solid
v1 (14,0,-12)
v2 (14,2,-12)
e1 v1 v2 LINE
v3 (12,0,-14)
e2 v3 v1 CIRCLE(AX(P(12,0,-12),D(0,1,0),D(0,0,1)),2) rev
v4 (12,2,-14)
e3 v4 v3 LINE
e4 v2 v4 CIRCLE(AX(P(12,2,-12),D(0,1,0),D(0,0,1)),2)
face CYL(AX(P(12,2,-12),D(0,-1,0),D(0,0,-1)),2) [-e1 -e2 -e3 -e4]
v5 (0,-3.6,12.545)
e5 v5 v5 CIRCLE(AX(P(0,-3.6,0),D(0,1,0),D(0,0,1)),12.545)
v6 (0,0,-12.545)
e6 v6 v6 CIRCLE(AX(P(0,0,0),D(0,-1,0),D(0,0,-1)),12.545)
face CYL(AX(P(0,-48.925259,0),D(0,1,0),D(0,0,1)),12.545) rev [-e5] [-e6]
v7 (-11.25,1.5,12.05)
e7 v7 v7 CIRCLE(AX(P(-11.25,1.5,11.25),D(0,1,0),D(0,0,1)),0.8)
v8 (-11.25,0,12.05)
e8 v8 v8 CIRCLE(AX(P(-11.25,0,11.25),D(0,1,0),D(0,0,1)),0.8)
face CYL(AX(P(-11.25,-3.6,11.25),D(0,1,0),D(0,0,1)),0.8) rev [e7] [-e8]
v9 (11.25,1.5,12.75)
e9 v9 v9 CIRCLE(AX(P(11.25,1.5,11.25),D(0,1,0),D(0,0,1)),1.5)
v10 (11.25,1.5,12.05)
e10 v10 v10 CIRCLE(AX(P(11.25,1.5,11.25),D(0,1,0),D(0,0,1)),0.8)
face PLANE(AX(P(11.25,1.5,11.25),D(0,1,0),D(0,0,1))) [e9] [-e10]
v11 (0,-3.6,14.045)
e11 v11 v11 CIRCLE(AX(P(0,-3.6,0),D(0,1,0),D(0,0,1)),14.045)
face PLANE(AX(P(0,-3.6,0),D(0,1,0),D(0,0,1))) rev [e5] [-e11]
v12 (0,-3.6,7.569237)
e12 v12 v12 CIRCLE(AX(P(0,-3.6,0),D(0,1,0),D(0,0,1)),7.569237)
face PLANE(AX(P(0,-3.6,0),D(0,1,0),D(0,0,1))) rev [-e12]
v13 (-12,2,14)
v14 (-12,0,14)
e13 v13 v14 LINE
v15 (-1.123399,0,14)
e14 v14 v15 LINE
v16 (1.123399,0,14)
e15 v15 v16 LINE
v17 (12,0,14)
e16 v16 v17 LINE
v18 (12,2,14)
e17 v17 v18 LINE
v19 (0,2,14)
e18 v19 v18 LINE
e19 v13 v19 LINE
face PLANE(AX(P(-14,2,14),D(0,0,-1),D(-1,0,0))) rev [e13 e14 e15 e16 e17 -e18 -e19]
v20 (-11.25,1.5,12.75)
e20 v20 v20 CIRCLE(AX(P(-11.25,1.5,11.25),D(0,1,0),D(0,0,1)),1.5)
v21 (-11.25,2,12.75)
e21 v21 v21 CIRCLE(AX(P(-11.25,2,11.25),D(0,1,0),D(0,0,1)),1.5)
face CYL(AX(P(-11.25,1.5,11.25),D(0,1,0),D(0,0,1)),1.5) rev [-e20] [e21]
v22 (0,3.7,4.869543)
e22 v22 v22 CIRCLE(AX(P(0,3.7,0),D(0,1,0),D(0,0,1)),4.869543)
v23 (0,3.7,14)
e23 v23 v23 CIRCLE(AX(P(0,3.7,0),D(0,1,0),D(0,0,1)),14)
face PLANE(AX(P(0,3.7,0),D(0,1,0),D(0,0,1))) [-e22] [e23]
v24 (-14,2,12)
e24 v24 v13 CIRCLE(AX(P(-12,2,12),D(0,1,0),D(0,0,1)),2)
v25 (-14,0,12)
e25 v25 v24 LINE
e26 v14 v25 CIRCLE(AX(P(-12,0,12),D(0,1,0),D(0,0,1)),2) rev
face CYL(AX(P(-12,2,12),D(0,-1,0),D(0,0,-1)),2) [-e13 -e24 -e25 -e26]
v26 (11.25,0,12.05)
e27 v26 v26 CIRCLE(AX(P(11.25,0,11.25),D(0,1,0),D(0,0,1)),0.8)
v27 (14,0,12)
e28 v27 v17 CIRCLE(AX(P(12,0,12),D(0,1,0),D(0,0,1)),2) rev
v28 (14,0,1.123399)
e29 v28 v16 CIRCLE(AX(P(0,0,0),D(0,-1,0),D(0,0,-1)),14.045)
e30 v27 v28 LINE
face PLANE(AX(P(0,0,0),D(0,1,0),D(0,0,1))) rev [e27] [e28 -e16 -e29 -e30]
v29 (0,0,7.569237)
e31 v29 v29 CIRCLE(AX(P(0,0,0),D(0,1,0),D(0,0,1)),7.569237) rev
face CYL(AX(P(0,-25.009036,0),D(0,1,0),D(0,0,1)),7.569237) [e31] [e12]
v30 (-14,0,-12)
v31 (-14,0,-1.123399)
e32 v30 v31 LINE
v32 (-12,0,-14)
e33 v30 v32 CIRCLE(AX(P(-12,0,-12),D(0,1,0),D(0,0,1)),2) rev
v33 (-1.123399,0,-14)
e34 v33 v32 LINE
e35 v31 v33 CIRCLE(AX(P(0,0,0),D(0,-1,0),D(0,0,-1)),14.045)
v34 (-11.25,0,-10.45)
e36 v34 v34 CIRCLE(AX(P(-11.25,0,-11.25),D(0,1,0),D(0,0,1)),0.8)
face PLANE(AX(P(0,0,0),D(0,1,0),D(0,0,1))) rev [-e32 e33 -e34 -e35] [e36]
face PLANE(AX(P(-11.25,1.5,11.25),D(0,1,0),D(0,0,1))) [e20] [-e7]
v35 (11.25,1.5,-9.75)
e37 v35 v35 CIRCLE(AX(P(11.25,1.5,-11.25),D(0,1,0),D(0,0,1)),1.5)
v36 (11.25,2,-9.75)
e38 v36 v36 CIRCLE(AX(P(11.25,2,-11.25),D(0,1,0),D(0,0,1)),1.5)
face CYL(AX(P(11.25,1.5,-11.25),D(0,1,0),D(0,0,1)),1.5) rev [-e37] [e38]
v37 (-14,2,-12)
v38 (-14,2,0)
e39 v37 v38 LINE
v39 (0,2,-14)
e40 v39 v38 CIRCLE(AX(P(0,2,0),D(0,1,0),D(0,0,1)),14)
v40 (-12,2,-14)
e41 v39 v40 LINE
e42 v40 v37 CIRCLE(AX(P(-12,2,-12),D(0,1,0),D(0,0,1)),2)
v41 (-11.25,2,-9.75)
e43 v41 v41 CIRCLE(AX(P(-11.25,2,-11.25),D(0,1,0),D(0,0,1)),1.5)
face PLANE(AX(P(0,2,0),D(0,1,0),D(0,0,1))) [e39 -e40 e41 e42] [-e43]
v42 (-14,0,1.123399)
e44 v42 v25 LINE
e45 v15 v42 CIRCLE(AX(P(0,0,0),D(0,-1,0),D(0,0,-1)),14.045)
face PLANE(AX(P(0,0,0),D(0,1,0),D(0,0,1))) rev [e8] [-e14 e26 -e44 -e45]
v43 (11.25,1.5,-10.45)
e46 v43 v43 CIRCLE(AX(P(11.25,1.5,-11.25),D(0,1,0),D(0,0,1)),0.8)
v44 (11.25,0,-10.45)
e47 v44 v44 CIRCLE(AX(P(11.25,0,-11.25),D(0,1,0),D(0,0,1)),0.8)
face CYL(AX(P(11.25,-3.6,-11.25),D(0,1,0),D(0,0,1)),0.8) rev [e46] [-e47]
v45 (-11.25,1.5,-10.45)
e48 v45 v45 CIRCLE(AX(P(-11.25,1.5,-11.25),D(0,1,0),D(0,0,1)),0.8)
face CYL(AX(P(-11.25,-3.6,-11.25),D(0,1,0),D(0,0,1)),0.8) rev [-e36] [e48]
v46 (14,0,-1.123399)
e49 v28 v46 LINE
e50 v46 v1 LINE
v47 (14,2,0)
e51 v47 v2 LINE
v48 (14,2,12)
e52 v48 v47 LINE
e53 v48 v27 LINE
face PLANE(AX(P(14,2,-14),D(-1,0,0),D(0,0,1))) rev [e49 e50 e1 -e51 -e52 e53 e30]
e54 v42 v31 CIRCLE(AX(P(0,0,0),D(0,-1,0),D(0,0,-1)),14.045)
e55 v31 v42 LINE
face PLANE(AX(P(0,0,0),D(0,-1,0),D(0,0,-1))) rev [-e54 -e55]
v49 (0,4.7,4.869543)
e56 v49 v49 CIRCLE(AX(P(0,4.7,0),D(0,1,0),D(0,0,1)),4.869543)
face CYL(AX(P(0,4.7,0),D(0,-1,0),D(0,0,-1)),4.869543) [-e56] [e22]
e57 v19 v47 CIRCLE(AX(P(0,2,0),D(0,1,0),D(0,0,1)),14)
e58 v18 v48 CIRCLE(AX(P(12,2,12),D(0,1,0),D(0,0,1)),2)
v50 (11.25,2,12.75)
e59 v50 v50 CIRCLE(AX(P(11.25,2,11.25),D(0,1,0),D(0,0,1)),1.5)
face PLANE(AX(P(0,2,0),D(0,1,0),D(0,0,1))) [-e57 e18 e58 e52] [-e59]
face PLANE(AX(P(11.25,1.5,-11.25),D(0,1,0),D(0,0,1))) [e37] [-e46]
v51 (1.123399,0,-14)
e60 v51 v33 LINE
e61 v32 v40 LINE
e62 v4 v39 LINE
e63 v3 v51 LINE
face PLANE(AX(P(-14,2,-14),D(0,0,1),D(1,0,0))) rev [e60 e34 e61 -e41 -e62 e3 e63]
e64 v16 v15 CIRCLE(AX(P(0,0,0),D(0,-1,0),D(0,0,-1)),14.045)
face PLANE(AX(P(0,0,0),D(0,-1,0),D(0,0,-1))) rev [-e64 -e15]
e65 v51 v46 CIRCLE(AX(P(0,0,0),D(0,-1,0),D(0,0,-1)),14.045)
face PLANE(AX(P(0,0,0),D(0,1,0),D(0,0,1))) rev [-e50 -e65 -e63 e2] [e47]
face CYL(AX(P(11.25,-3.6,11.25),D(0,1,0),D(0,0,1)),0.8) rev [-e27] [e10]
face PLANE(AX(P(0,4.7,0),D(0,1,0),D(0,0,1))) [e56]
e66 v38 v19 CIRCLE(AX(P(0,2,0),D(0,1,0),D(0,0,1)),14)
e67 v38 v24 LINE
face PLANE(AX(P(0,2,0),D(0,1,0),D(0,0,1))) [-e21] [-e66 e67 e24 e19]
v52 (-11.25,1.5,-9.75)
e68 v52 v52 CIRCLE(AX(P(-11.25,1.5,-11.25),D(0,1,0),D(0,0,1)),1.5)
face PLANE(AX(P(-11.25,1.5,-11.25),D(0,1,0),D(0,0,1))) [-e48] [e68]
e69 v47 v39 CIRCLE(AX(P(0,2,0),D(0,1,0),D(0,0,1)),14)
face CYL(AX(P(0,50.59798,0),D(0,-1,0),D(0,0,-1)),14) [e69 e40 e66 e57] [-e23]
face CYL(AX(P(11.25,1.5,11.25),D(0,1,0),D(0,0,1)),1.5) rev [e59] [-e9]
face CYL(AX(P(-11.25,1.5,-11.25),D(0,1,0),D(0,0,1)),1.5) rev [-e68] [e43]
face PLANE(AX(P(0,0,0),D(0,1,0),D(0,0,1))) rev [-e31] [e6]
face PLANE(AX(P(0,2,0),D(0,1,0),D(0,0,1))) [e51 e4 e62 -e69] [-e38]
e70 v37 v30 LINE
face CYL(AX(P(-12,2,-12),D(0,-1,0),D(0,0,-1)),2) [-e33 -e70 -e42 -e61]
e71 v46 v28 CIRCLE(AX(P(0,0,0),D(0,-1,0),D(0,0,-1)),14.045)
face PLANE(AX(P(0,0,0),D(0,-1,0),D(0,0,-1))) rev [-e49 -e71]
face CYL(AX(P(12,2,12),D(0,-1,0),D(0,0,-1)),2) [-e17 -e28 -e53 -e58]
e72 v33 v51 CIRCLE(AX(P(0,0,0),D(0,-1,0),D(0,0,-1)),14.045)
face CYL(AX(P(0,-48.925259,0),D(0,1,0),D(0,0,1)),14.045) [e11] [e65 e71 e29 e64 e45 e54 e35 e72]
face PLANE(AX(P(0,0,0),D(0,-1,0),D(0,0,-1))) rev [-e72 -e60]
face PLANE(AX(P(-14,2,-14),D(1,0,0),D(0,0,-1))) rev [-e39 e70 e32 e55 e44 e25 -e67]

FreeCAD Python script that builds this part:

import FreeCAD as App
import Part
import Sketcher

V = App.Vector


def edges_at(feature, points):
    """Names of the edges that pass closest to the given points."""
    edges = feature.Shape.Edges
    near = lambda p: min(range(len(edges)), key=lambda i: edges[i].distToShape(Part.Vertex(*p))[0])
    return sorted({f"Edge{near(p) + 1}" for p in points})

doc = App.newDocument("Part")
body = doc.addObject("PartDesign::Body", "Body")

sketch1 = body.newObject("Sketcher::SketchObject", "Sketch")
sketch1.AttachmentSupport = (doc.getObject("XZ_Plane"), [""])
sketch1.MapMode = "FlatFace"
sketch1.addGeometry([
    Part.LineSegment(V(-14, -14, 0), V(-14, 14, 0)),
    Part.LineSegment(V(-14, 14, 0), V(14, 14, 0)),
    Part.LineSegment(V(14, 14, 0), V(14, -14, 0)),
    Part.LineSegment(V(14, -14, 0), V(-14, -14, 0)),
], False)
sketch1.addConstraint([
    Sketcher.Constraint("Coincident", 0, 2, 1, 1),
    Sketcher.Constraint("Coincident", 1, 2, 2, 1),
    Sketcher.Constraint("Coincident", 2, 2, 3, 1),
    Sketcher.Constraint("Coincident", 3, 2, 0, 1),
    Sketcher.Constraint("Vertical", 0),
    Sketcher.Constraint("Horizontal", 1),
    Sketcher.Constraint("Vertical", 2),
    Sketcher.Constraint("Horizontal", 3),
    Sketcher.Constraint("Symmetric", 0, 2, 2, 2, -1, 1),
    Sketcher.Constraint("Equal", 3, 0),
    Sketcher.Constraint("DistanceX", 1, 1, 1, 2, 28.0),
])
pad1 = body.newObject("PartDesign::Pad", "Pad")
pad1.Profile = sketch1
pad1.Length = 2
pad1.Reversed = True

sketch2 = body.newObject("Sketcher::SketchObject", "Sketch001")
sketch2.AttachmentSupport = (doc.getObject("XZ_Plane"), [""])
sketch2.MapMode = "FlatFace"
sketch2.addGeometry([
    Part.Circle(V(0, 0, 0), V(0, 0, 1), 14),
    Part.Circle(V(0, 0, 0), V(0, 0, 1), 13),
], False)
sketch2.addConstraint([
    Sketcher.Constraint("Coincident", 0, 3, -1, 1),
    Sketcher.Constraint("Coincident", 1, 3, -1, 1),
    Sketcher.Constraint("Diameter", 0, 28.09),
    Sketcher.Constraint("Diameter", 1, 25.09),
])
pad2 = body.newObject("PartDesign::Pad", "Pad001")
pad2.Profile = sketch2
pad2.Length = 3.6

sketch3 = body.newObject("Sketcher::SketchObject", "Sketch002")
sketch3.AttachmentSupport = (doc.getObject("XZ_Plane"), [""])
sketch3.MapMode = "FlatFace"
sketch3.AttachmentOffset = App.Placement(V(0, 0, -2), App.Rotation())
sketch3.addGeometry(Part.Circle(V(0, 0, 0), V(0, 0, 1), 14), False)
sketch3.addConstraint([
    Sketcher.Constraint("Coincident", 0, 3, -1, 1),
    Sketcher.Constraint("Diameter", 0, 28.0),
])
pad3 = body.newObject("PartDesign::Pad", "Pad002")
pad3.Profile = sketch3
pad3.Length = 1.7
pad3.Reversed = True

sketch4 = body.newObject("Sketcher::SketchObject", "Sketch003")
sketch4.AttachmentSupport = (doc.getObject("XZ_Plane"), [""])
sketch4.MapMode = "FlatFace"
sketch4.AttachmentOffset = App.Placement(V(0, 0, -3.7), App.Rotation())
sketch4.addGeometry(Part.Circle(V(0, 0, 0), V(0, 0, 1), 4.9), False)
sketch4.addConstraint([
    Sketcher.Constraint("Coincident", 0, 3, -1, 1),
    Sketcher.Constraint("Diameter", 0, 9.739086),
])
pad4 = body.newObject("PartDesign::Pad", "Pad003")
pad4.Profile = sketch4
pad4.Length = 1
pad4.Reversed = True

sketch5 = body.newObject("Sketcher::SketchObject", "Sketch004")
sketch5.AttachmentSupport = (doc.getObject("XZ_Plane"), [""])
sketch5.MapMode = "FlatFace"
sketch5.addGeometry(Part.Circle(V(0, 0, 0), V(0, 0, 1), 8), False)
sketch5.addConstraint([
    Sketcher.Constraint("Coincident", 0, 3, -1, 1),
    Sketcher.Constraint("Diameter", 0, 15.138475),
])
pad5 = body.newObject("PartDesign::Pad", "Pad004")
pad5.Profile = sketch5
pad5.Length = 3.6

sketch6 = body.newObject("Sketcher::SketchObject", "Sketch005")
sketch6.AttachmentSupport = (doc.getObject("XZ_Plane"), [""])
sketch6.MapMode = "FlatFace"
sketch6.AttachmentOffset = App.Placement(V(0, 0, -2), App.Rotation())
sketch6.addGeometry([
    Part.Circle(V(11.2, -11.2, 0), V(0, 0, 1), 1.5),
    Part.Circle(V(-11.2, -11.2, 0), V(0, 0, 1), 1.5),
    Part.Circle(V(-11.2, 11.2, 0), V(0, 0, 1), 1.5),
    Part.Circle(V(11.2, 11.2, 0), V(0, 0, 1), 1.5),
], False)
sketch6.addConstraint([
    Sketcher.Constraint("Equal", 0, 1),
    Sketcher.Constraint("Equal", 1, 2),
    Sketcher.Constraint("Equal", 2, 3),
    Sketcher.Constraint("Symmetric", 0, 3, 2, 3, -1, 1),
    Sketcher.Constraint("Symmetric", 1, 3, 3, 3, -1, 1),
    Sketcher.Constraint("Symmetric", 0, 3, 1, 3, -2),
    Sketcher.Constraint("Diameter", 0, 3.0),
    Sketcher.Constraint("DistanceX", 1, 3, 0, 3, 22.5),
    Sketcher.Constraint("DistanceY", 1, 3, 2, 3, 22.5),
])
pocket1 = body.newObject("PartDesign::Pocket", "Pocket")
pocket1.Profile = sketch6
pocket1.Length = 0.5
pocket1.Reversed = True

sketch7 = body.newObject("Sketcher::SketchObject", "Sketch006")
sketch7.AttachmentSupport = (doc.getObject("XZ_Plane"), [""])
sketch7.MapMode = "FlatFace"
sketch7.AttachmentOffset = App.Placement(V(0, 0, -1.5), App.Rotation())
sketch7.addGeometry([
    Part.Circle(V(-11.2, -11.2, 0), V(0, 0, 1), 0.8),
    Part.Circle(V(11.2, -11.2, 0), V(0, 0, 1), 0.8),
    Part.Circle(V(11.2, 11.2, 0), V(0, 0, 1), 0.8),
    Part.Circle(V(-11.2, 11.2, 0), V(0, 0, 1), 0.8),
], False)
sketch7.addConstraint([
    Sketcher.Constraint("Equal", 0, 1),
    Sketcher.Constraint("Equal", 1, 2),
    Sketcher.Constraint("Equal", 2, 3),
    Sketcher.Constraint("Symmetric", 0, 3, 2, 3, -1, 1),
    Sketcher.Constraint("Symmetric", 1, 3, 3, 3, -1, 1),
    Sketcher.Constraint("Symmetric", 0, 3, 1, 3, -2),
    Sketcher.Constraint("Diameter", 0, 1.6),
    Sketcher.Constraint("DistanceX", 0, 3, 1, 3, 22.5),
    Sketcher.Constraint("DistanceY", 1, 3, 2, 3, 22.5),
])
pocket2 = body.newObject("PartDesign::Pocket", "Pocket001")
pocket2.Profile = sketch7
pocket2.Type = "ThroughAll"
pocket2.Reversed = True
doc.recompute()

fillet = body.newObject("PartDesign::Fillet", "Fillet")
fillet.Base = (pocket2, edges_at(pocket2, [
    (14, 1, 14),
    (-14, 1, 14),
    (-14, 1, -14),
    (14, 1, -14),
]))
fillet.Radius = 2

doc.recompute()
